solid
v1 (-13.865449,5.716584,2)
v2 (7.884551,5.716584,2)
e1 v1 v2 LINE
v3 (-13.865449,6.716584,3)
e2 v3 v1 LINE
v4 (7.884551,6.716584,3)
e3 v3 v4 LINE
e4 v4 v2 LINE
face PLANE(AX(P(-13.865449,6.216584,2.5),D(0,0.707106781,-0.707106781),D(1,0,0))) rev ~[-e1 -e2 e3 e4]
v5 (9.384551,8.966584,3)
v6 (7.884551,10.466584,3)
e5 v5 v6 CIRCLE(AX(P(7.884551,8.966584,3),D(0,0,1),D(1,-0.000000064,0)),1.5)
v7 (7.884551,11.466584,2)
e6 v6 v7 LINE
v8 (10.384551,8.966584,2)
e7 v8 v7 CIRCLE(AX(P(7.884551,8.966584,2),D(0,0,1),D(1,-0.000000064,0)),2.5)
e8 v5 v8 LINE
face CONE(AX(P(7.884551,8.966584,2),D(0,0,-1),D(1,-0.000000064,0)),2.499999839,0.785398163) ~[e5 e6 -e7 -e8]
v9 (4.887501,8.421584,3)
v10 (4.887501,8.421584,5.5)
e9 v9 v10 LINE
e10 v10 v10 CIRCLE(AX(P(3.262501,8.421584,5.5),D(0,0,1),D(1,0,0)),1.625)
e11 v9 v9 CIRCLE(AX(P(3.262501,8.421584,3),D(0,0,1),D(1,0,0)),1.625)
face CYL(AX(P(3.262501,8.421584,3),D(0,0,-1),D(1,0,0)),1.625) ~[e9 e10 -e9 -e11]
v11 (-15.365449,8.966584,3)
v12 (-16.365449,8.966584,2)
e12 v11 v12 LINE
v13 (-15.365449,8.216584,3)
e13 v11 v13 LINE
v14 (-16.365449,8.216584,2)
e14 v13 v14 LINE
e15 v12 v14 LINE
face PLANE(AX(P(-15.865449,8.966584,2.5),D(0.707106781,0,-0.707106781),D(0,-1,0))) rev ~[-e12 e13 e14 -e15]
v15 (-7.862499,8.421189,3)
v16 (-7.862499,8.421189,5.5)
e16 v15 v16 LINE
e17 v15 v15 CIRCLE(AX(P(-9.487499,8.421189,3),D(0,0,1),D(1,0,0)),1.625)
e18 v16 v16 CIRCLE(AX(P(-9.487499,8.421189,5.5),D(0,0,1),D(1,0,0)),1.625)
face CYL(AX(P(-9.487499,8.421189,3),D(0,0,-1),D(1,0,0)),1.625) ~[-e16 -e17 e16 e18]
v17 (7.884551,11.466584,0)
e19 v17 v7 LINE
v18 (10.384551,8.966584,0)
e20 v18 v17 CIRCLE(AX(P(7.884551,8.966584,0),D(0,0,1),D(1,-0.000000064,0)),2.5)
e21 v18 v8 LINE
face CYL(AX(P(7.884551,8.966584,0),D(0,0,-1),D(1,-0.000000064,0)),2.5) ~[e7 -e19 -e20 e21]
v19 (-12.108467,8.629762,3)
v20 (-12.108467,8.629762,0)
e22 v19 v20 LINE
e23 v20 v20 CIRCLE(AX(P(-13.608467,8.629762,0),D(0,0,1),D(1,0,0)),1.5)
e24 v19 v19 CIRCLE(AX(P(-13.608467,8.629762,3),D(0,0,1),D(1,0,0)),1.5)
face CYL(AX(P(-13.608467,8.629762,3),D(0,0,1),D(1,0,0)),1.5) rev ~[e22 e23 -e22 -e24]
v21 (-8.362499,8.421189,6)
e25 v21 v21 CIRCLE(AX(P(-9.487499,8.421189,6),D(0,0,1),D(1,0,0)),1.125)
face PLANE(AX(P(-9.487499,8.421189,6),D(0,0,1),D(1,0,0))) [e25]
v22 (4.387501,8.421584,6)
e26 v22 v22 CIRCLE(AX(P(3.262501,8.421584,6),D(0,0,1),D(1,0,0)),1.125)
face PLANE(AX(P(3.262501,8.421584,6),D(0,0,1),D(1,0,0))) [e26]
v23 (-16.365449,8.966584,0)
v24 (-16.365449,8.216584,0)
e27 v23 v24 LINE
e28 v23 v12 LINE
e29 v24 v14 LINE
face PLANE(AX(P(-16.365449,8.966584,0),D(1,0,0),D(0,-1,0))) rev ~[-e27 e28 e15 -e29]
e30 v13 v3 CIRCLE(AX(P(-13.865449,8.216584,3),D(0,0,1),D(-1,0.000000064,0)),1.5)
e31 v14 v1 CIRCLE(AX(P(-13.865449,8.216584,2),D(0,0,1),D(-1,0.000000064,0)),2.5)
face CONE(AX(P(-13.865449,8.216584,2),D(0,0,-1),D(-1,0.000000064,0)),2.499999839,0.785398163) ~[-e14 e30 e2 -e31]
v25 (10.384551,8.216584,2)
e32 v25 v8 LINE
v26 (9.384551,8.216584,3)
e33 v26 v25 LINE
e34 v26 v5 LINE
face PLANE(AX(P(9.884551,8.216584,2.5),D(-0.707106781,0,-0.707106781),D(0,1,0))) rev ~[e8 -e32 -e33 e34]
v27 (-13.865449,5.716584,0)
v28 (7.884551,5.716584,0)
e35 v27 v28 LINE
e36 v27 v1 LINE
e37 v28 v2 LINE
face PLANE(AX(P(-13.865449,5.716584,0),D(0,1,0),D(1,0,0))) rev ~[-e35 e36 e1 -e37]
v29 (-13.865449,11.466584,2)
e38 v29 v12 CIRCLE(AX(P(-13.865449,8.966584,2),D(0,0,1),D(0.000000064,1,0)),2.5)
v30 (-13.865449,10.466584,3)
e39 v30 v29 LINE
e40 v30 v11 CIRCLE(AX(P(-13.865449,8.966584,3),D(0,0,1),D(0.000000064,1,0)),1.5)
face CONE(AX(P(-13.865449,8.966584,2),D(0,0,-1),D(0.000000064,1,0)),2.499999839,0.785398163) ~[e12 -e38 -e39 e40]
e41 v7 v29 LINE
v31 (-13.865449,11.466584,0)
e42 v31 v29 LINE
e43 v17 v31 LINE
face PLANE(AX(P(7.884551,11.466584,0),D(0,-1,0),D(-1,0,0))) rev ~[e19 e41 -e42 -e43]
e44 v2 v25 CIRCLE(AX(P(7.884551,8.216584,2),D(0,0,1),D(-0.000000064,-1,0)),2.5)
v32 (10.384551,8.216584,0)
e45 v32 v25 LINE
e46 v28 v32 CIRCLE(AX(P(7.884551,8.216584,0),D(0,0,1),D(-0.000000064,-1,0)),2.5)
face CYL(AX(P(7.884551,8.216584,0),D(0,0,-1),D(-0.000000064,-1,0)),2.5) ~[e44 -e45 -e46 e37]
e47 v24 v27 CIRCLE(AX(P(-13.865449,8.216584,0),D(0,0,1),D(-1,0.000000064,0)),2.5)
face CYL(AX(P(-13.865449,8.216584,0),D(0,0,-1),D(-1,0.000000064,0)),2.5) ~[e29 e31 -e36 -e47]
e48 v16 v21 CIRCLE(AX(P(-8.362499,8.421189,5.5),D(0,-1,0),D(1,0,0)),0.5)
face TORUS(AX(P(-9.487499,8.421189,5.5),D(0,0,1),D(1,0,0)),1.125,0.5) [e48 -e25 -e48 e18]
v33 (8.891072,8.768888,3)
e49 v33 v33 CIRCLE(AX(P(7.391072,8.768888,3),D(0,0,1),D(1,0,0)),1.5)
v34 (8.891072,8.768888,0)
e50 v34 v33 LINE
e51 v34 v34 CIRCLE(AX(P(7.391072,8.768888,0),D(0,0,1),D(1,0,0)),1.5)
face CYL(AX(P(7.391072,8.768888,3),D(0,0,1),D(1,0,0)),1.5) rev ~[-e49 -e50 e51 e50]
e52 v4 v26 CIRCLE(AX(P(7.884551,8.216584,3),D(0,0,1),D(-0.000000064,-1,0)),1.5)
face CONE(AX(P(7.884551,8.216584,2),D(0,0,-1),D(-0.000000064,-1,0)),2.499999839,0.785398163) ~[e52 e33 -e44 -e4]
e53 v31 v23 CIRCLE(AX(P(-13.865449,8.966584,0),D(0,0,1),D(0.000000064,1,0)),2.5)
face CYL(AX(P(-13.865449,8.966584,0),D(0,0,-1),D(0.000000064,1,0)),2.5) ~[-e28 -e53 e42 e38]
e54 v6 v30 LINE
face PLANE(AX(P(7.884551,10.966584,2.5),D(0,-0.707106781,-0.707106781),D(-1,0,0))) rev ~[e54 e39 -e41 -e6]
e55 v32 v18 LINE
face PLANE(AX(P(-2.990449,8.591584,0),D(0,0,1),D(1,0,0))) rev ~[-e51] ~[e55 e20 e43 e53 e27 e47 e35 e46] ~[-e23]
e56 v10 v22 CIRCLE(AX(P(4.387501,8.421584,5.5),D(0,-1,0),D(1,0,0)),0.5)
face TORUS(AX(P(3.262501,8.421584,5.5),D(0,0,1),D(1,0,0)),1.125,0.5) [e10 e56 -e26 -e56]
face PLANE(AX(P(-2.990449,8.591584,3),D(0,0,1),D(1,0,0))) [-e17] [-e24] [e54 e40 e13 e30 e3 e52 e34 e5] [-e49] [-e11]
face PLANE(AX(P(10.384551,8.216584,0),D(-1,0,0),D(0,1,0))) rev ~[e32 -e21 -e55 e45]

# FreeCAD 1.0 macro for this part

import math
import FreeCAD as App
import Part
import Sketcher
from FreeCAD import Vector


def edges_at(feature, points):
    """Names of the edges that pass closest to the given points."""
    edges = feature.Shape.Edges
    near = lambda p: min(range(len(edges)), key=lambda i: edges[i].distToShape(Part.Vertex(*p))[0])
    return sorted({f"Edge{near(p) + 1}" for p in points})

doc = App.newDocument("Part")
params = doc.addObject("Spreadsheet::Sheet", "Params")
for row, (alias, value) in enumerate([
    ("sketch1_radius", "2.5 mm"),
    ("sketch1_width", "21.75 mm"),
    ("sketch1_height", "0.75 mm"),
    ("pad1_length", "3 mm"),
    ("sketch2_diameter", "3.25 mm"),
    ("pad2_length", "3 mm"),
    ("sketch3_diameter", "3 mm"),
    ("pocket1_length", "25 mm"),
    ("fillet_radius", "0.5 mm"),
    ("chamfer_size", "1 mm"),
], start=1):
    params.set(f"A{row}", alias)
    params.set(f"B{row}", "=" + value)
    params.setAlias(f"B{row}", alias)

body = doc.addObject("PartDesign::Body", "Body")

# Sketch on XY plane
sketch1 = body.newObject("Sketcher::SketchObject", "Sketch")
sketch1.AttachmentSupport = (doc.getObject("XY_Plane"), [""])
sketch1.MapMode = "FlatFace"
sketch1.addGeometry([
    Part.LineSegment(Vector(7.884551, 11.466584, 0), Vector(-13.865449, 11.466584, 0)),  # 0
    Part.ArcOfCircle(Part.Circle(Vector(-13.865449, 8.966584, 0), Vector(0, 0, 1), 2.5), math.radians(89.999996), math.radians(180.000004)),  # 1
    Part.LineSegment(Vector(-16.365449, 8.966584, 0), Vector(-16.365449, 8.216584, 0)),  # 2
    Part.ArcOfCircle(Part.Circle(Vector(-13.865449, 8.216584, 0), Vector(0, 0, 1), 2.5), math.radians(179.999996), math.radians(270.000004)),  # 3
    Part.LineSegment(Vector(-13.865449, 5.716584, 0), Vector(7.884551, 5.716584, 0)),  # 4
    Part.ArcOfCircle(Part.Circle(Vector(7.884551, 8.216584, 0), Vector(0, 0, 1), 2.5), math.radians(-90.000004), math.radians(0.000004)),  # 5
    Part.LineSegment(Vector(10.384551, 8.216584, 0), Vector(10.384551, 8.966584, 0)),  # 6
    Part.ArcOfCircle(Part.Circle(Vector(7.884551, 8.966584, 0), Vector(0, 0, 1), 2.5), math.radians(-0.000004), math.radians(90.000004)),  # 7
], False)
sketch1.addConstraint([
    Sketcher.Constraint("Tangent", 0, 2, 1, 1),
    Sketcher.Constraint("Tangent", 1, 2, 2, 1),
    Sketcher.Constraint("Tangent", 2, 2, 3, 1),
    Sketcher.Constraint("Tangent", 3, 2, 4, 1),
    Sketcher.Constraint("Tangent", 4, 2, 5, 1),
    Sketcher.Constraint("Tangent", 5, 2, 6, 1),
    Sketcher.Constraint("Tangent", 6, 2, 7, 1),
    Sketcher.Constraint("Tangent", 7, 2, 0, 1),
    Sketcher.Constraint("Horizontal", 0),
    Sketcher.Constraint("Vertical", 2),
    Sketcher.Constraint("Horizontal", 4),
    Sketcher.Constraint("Vertical", 6),
    Sketcher.Constraint("Equal", 1, 3),
    Sketcher.Constraint("Equal", 3, 5),
    Sketcher.Constraint("Equal", 5, 7),
    Sketcher.Constraint("Radius", 1, 2.5),
    Sketcher.Constraint("DistanceX", 0, 2, 0, 1, 21.75),
    Sketcher.Constraint("DistanceY", 2, 2, 2, 1, 0.75),
    Sketcher.Constraint("DistanceX", 1, 3, -1, 1, 13.865449),
    Sketcher.Constraint("DistanceY", -1, 1, 1, 3, 8.966584),
])
sketch1.setExpression("Constraints[15]", "Params.sketch1_radius")
sketch1.setExpression("Constraints[16]", "Params.sketch1_width")
sketch1.setExpression("Constraints[17]", "Params.sketch1_height")
pad1 = body.newObject("PartDesign::Pad", "Pad")
pad1.Profile = sketch1
pad1.setExpression("Length", "Params.pad1_length")

# Sketch on XY plane
sketch2 = body.newObject("Sketcher::SketchObject", "Sketch001")
sketch2.AttachmentSupport = (doc.getObject("XY_Plane"), [""])
sketch2.MapMode = "FlatFace"
sketch2.AttachmentOffset = App.Placement(Vector(0, 0, 3), App.Rotation())
sketch2.addGeometry([
    Part.Circle(Vector(-9.487499, 8.421189, 0), Vector(0, 0, 1), 1.625),
    Part.Circle(Vector(3.262501, 8.421584, 0), Vector(0, 0, 1), 1.625),
], False)
sketch2.addConstraint([
    Sketcher.Constraint("Equal", 0, 1),
    Sketcher.Constraint("Diameter", 0, 3.25),
    Sketcher.Constraint("DistanceX", 0, 3, 1, 3, 12.75),
    Sketcher.Constraint("DistanceX", 0, 3, -1, 1, 9.487499),
    Sketcher.Constraint("DistanceY", -1, 1, 0, 3, 8.421189),
    Sketcher.Constraint("DistanceY", -1, 1, 1, 3, 8.421584),
])
sketch2.setExpression("Constraints[1]", "Params.sketch2_diameter")
pad2 = body.newObject("PartDesign::Pad", "Pad001")
pad2.Profile = sketch2
pad2.setExpression("Length", "Params.pad2_length")

# Sketch on XY plane
sketch3 = body.newObject("Sketcher::SketchObject", "Sketch002")
sketch3.AttachmentSupport = (doc.getObject("XY_Plane"), [""])
sketch3.MapMode = "FlatFace"
sketch3.AttachmentOffset = App.Placement(Vector(0, 0, 3), App.Rotation())
sketch3.addGeometry([
    Part.Circle(Vector(-13.608467, 8.629762, 0), Vector(0, 0, 1), 1.5),
    Part.Circle(Vector(7.391072, 8.768888, 0), Vector(0, 0, 1), 1.5),
], False)
sketch3.addConstraint([
    Sketcher.Constraint("Equal", 0, 1),
    Sketcher.Constraint("Diameter", 0, 3.0),
    Sketcher.Constraint("DistanceX", 0, 3, 1, 3, 20.999539),
    Sketcher.Constraint("DistanceX", 0, 3, -1, 1, 13.608467),
    Sketcher.Constraint("DistanceY", -1, 1, 0, 3, 8.629762),
    Sketcher.Constraint("DistanceY", -1, 1, 1, 3, 8.768888),
])
sketch3.setExpression("Constraints[1]", "Params.sketch3_diameter")
pocket1 = body.newObject("PartDesign::Pocket", "Pocket")
pocket1.Profile = sketch3
pocket1.setExpression("Length", "Params.pocket1_length")
pocket1.Midplane = True
doc.recompute()

fillet = body.newObject("PartDesign::Fillet", "Fillet")
fillet.Base = (pocket1, edges_at(pocket1, [(1.638, 8.422, 6), (-11.112, 8.421, 6)]))
fillet.setExpression("Radius", "Params.fillet_radius")
doc.recompute()

chamfer = body.newObject("PartDesign::Chamfer", "Chamfer")
chamfer.Base = (fillet, edges_at(fillet, [
    (-2.99, 11.467, 3),
    (9.652, 10.734, 3),
    (-15.633, 10.734, 3),
    (10.385, 8.592, 3),
    (9.652, 6.449, 3),
    (-2.99, 5.717, 3),
    (-16.365, 8.592, 3),
    (-15.633, 6.449, 3),
]))
chamfer.setExpression("Size", "Params.chamfer_size")

doc.recompute()
